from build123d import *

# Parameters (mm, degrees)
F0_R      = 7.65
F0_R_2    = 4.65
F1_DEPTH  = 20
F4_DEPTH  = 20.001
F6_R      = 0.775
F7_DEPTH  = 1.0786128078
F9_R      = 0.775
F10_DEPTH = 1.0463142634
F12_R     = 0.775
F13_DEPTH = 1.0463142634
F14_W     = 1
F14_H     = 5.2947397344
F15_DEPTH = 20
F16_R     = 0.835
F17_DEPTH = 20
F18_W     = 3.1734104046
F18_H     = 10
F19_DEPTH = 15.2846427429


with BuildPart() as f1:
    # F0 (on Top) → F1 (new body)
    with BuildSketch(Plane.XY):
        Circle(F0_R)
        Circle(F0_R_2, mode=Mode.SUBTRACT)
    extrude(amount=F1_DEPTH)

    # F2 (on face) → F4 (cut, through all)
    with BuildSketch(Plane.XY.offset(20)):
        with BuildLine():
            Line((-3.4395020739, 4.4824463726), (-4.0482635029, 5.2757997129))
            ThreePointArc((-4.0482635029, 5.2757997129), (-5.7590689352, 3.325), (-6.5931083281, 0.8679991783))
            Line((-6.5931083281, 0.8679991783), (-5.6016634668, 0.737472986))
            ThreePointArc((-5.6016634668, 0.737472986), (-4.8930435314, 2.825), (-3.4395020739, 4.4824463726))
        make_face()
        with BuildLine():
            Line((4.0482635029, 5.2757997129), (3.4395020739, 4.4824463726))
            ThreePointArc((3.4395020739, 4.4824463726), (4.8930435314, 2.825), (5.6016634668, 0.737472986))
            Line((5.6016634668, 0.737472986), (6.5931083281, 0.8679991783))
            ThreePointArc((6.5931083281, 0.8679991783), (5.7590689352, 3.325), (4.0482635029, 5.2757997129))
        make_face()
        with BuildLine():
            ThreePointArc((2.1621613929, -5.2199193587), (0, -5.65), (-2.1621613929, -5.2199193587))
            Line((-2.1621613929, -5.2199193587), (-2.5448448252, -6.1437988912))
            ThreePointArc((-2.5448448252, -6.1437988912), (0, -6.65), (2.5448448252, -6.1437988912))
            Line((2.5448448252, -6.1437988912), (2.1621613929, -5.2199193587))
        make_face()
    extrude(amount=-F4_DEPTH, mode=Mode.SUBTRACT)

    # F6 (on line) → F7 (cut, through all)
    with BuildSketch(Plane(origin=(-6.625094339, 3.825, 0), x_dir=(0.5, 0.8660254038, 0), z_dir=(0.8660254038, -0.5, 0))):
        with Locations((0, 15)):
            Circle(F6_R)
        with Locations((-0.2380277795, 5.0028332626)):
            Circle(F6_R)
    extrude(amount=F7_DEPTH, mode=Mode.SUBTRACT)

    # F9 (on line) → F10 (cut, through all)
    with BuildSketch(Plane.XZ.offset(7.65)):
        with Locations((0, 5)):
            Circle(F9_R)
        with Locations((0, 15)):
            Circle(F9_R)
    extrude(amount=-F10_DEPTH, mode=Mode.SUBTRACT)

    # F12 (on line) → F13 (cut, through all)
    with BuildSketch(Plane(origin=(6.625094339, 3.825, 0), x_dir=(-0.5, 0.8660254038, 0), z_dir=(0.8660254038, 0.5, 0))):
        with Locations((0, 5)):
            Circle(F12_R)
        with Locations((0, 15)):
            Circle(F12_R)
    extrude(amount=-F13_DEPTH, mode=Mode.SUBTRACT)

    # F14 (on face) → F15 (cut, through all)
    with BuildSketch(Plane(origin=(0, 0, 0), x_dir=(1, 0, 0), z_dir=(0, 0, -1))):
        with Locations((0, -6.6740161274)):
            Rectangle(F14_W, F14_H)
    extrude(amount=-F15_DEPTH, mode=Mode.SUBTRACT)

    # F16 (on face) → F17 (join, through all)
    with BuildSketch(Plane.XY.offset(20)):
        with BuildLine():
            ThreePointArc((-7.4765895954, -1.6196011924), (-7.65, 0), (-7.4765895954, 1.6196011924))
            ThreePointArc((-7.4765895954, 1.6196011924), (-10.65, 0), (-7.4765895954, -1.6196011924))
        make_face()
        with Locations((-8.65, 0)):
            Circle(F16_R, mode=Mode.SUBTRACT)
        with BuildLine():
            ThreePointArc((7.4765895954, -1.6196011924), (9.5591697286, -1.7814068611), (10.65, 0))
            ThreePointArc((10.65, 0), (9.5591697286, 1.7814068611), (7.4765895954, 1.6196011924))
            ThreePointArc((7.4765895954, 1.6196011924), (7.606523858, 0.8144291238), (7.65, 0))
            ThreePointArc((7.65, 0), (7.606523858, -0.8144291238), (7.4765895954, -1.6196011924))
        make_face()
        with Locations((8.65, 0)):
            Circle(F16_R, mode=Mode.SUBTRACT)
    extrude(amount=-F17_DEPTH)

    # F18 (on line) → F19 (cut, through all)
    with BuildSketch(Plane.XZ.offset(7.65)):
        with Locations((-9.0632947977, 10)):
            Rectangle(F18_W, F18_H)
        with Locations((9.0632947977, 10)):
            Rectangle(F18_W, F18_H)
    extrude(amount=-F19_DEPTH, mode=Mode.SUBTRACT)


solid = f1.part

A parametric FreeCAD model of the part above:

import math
import FreeCAD as App
import Part
import Sketcher
Q = App.Units.Quantity


def add_polygon(sketch, points):
    """Adds a closed chain of lines whose ends are joined by coincident constraints."""
    first, n = sketch.GeometryCount, len(points)
    for a, b in zip(points, points[1:] + points[:1]):
        sketch.addGeometry(Part.LineSegment(App.Vector(*a, 0), App.Vector(*b, 0)), False)
    for i in range(n):
        sketch.addConstraint(Sketcher.Constraint("Coincident", first + i, 2, first + (i + 1) % n, 1))

doc = App.newDocument("Part")
body = doc.addObject("PartDesign::Body", "Body")

# Sketch on XY plane
sketch1 = body.newObject("Sketcher::SketchObject", "Sketch")
sketch1.AttachmentSupport = (doc.getObject("XY_Plane"), [""])
sketch1.MapMode = "FlatFace"
sketch1.addGeometry(Part.Circle(App.Vector(0, 0, 0), App.Vector(0, 0, 1), 7.65), False)
sketch1.addGeometry(Part.Circle(App.Vector(0, 0, 0), App.Vector(0, 0, 1), 4.65), False)
sketch1.addConstraint(Sketcher.Constraint("Coincident", 0, 3, -1, 1))
sketch1.addConstraint(Sketcher.Constraint("Coincident", 1, 3, -1, 1))
sketch1.addConstraint(Sketcher.Constraint("Diameter", 0, 15.3))
sketch1.addConstraint(Sketcher.Constraint("Diameter", 1, 9.3))
pad1 = body.newObject("PartDesign::Pad", "Pad")
pad1.Profile = sketch1
pad1.Length = 20

# Sketch on XY plane
sketch2 = body.newObject("Sketcher::SketchObject", "Sketch001")
sketch2.AttachmentSupport = (doc.getObject("XY_Plane"), [""])
sketch2.MapMode = "FlatFace"
sketch2.AttachmentOffset = App.Placement(App.Vector(0, 0, 20), App.Rotation())
sketch2.addGeometry(Part.LineSegment(App.Vector(-3.439502, 4.482446, 0), App.Vector(-4.048264, 5.2758, 0)), False)
sketch2.addGeometry(Part.ArcOfCircle(Part.Circle(App.Vector(0, 0, 0), App.Vector(0, 0, 1), 6.65), math.radians(127.5), math.radians(172.5)), False)
sketch2.addGeometry(Part.LineSegment(App.Vector(-6.593108, 0.867999, 0), App.Vector(-5.601663, 0.737473, 0)), False)
sketch2.addGeometry(Part.ArcOfCircle(Part.Circle(App.Vector(0, 0, 0), App.Vector(0, 0, 1), 5.65), math.radians(127.5), math.radians(172.5)), False)
sketch2.addGeometry(Part.LineSegment(App.Vector(4.048264, 5.2758, 0), App.Vector(3.439502, 4.482446, 0)), False)
sketch2.addGeometry(Part.ArcOfCircle(Part.Circle(App.Vector(0, 0, 0), App.Vector(0, 0, 1), 5.65), math.radians(7.5), math.radians(52.5)), False)
sketch2.addGeometry(Part.LineSegment(App.Vector(5.601663, 0.737473, 0), App.Vector(6.593108, 0.867999, 0)), False)
sketch2.addGeometry(Part.ArcOfCircle(Part.Circle(App.Vector(0, 0, 0), App.Vector(0, 0, 1), 6.65), math.radians(7.5), math.radians(52.5)), False)
sketch2.addGeometry(Part.ArcOfCircle(Part.Circle(App.Vector(0, 0, 0), App.Vector(0, 0, 1), 5.65), math.radians(-112.5), math.radians(-67.5)), False)
sketch2.addGeometry(Part.LineSegment(App.Vector(-2.162161, -5.219919, 0), App.Vector(-2.544845, -6.143799, 0)), False)
sketch2.addGeometry(Part.ArcOfCircle(Part.Circle(App.Vector(0, 0, 0), App.Vector(0, 0, 1), 6.65), math.radians(-112.5), math.radians(-67.5)), False)
sketch2.addGeometry(Part.LineSegment(App.Vector(2.544845, -6.143799, 0), App.Vector(2.162161, -5.219919, 0)), False)
sketch2.addConstraint(Sketcher.Constraint("Coincident", 0, 2, 1, 1))
sketch2.addConstraint(Sketcher.Constraint("Coincident", 1, 2, 2, 1))
sketch2.addConstraint(Sketcher.Constraint("Coincident", 2, 2, 3, 2))
sketch2.addConstraint(Sketcher.Constraint("Coincident", 3, 1, 0, 1))
sketch2.addConstraint(Sketcher.Constraint("Coincident", 4, 2, 5, 2))
sketch2.addConstraint(Sketcher.Constraint("Coincident", 5, 1, 6, 1))
sketch2.addConstraint(Sketcher.Constraint("Coincident", 6, 2, 7, 1))
sketch2.addConstraint(Sketcher.Constraint("Coincident", 7, 2, 4, 1))
sketch2.addConstraint(Sketcher.Constraint("Coincident", 8, 1, 9, 1))
sketch2.addConstraint(Sketcher.Constraint("Coincident", 9, 2, 10, 1))
sketch2.addConstraint(Sketcher.Constraint("Coincident", 10, 2, 11, 1))
sketch2.addConstraint(Sketcher.Constraint("Coincident", 11, 2, 8, 2))
sketch2.addConstraint(Sketcher.Constraint("Coincident", 1, 3, -1, 1))
sketch2.addConstraint(Sketcher.Constraint("Coincident", 3, 3, -1, 1))
sketch2.addConstraint(Sketcher.Constraint("Coincident", 5, 3, -1, 1))
sketch2.addConstraint(Sketcher.Constraint("Coincident", 7, 3, -1, 1))
sketch2.addConstraint(Sketcher.Constraint("Coincident", 8, 3, -1, 1))
sketch2.addConstraint(Sketcher.Constraint("Coincident", 10, 3, -1, 1))
sketch2.addConstraint(Sketcher.Constraint("Equal", 3, 5))
sketch2.addConstraint(Sketcher.Constraint("Equal", 1, 7))
sketch2.addConstraint(Sketcher.Constraint("Equal", 5, 8))
sketch2.addConstraint(Sketcher.Constraint("Equal", 7, 10))
sketch2.addConstraint(Sketcher.Constraint("Horizontal", 3, 1, 4, 2))
sketch2.addConstraint(Sketcher.Constraint("Horizontal", 2, 2, 5, 1))
sketch2.addConstraint(Sketcher.Constraint("Horizontal", 1, 2, 6, 2))
sketch2.addConstraint(Sketcher.Constraint("Horizontal", 0, 2, 7, 2))
sketch2.addConstraint(Sketcher.Constraint("Horizontal", 9, 2, 10, 2))
sketch2.addConstraint(Sketcher.Constraint("Horizontal", 8, 1, 11, 2))
sketch2.addConstraint(Sketcher.Constraint("Radius", 1, 6.65))
sketch2.addConstraint(Sketcher.Constraint("Radius", 3, 5.65))
sketch2.addConstraint(Sketcher.Constraint("Angle", 0, Q("127.5 deg")))
sketch2.addConstraint(Sketcher.Constraint("Angle", 2, Q("-7.5 deg")))
sketch2.addConstraint(Sketcher.Constraint("Angle", 9, Q("-112.5 deg")))
sketch2.addConstraint(Sketcher.Constraint("DistanceY", -1, 1, 1, 2, 0.867999))
sketch2.addConstraint(Sketcher.Constraint("DistanceY", -1, 1, 0, 2, 5.2758))
sketch2.addConstraint(Sketcher.Constraint("DistanceY", 9, 2, -1, 1, 6.143799))
pocket1 = body.newObject("PartDesign::Pocket", "Pocket")
pocket1.Profile = sketch2
pocket1.Type = "ThroughAll"

# Sketch on an angled plane
sketch3 = body.newObject("Sketcher::SketchObject", "Sketch002")
sketch3.Placement = App.Placement(App.Vector(-6.625094, 3.825, 0), App.Rotation(App.Vector(0.5, 0.866025404, 0), App.Vector(0, 0, 1), App.Vector(0.866025404, -0.5, 0), "ZXY"))
sketch3.addGeometry(Part.Circle(App.Vector(0, 15, 0), App.Vector(0, 0, 1), 0.775), False)
sketch3.addGeometry(Part.Circle(App.Vector(-0.238028, 5.002833, 0), App.Vector(0, 0, 1), 0.775), False)
sketch3.addConstraint(Sketcher.Constraint("Equal", 0, 1))
sketch3.addConstraint(Sketcher.Constraint("PointOnObject", 0, 3, -2))
sketch3.addConstraint(Sketcher.Constraint("Diameter", 0, 1.55))
sketch3.addConstraint(Sketcher.Constraint("DistanceY", -1, 1, 0, 3, 15.0))
sketch3.addConstraint(Sketcher.Constraint("DistanceX", 1, 3, -1, 1, 0.238028))
sketch3.addConstraint(Sketcher.Constraint("DistanceY", -1, 1, 1, 3, 5.002833))
pocket2 = body.newObject("PartDesign::Pocket", "Pocket001")
pocket2.Profile = sketch3
pocket2.Length = 1.078613
pocket2.Reversed = True

# Sketch on XZ plane
sketch4 = body.newObject("Sketcher::SketchObject", "Sketch003")
sketch4.AttachmentSupport = (doc.getObject("XZ_Plane"), [""])
sketch4.MapMode = "FlatFace"
sketch4.AttachmentOffset = App.Placement(App.Vector(0, 0, 7.65), App.Rotation())
sketch4.addGeometry(Part.Circle(App.Vector(0, 5, 0), App.Vector(0, 0, 1), 0.775), False)
sketch4.addGeometry(Part.Circle(App.Vector(0, 15, 0), App.Vector(0, 0, 1), 0.775), False)
sketch4.addConstraint(Sketcher.Constraint("Equal", 0, 1))
sketch4.addConstraint(Sketcher.Constraint("PointOnObject", 0, 3, -2))
sketch4.addConstraint(Sketcher.Constraint("PointOnObject", 1, 3, -2))
sketch4.addConstraint(Sketcher.Constraint("Diameter", 0, 1.55))
sketch4.addConstraint(Sketcher.Constraint("DistanceY", -1, 1, 0, 3, 5.0))
sketch4.addConstraint(Sketcher.Constraint("DistanceY", -1, 1, 1, 3, 15.0))
pocket3 = body.newObject("PartDesign::Pocket", "Pocket002")
pocket3.Profile = sketch4
pocket3.Length = 1.046314

# Sketch on an angled plane
sketch5 = body.newObject("Sketcher::SketchObject", "Sketch004")
sketch5.Placement = App.Placement(App.Vector(6.625094, 3.825, 0), App.Rotation(App.Vector(-0.5, 0.866025404, 0), App.Vector(0, 0, 1), App.Vector(0.866025404, 0.5, 0), "ZXY"))
sketch5.addGeometry(Part.Circle(App.Vector(0, 5, 0), App.Vector(0, 0, 1), 0.775), False)
sketch5.addGeometry(Part.Circle(App.Vector(0, 15, 0), App.Vector(0, 0, 1), 0.775), False)
sketch5.addConstraint(Sketcher.Constraint("Equal", 0, 1))
sketch5.addConstraint(Sketcher.Constraint("PointOnObject", 0, 3, -2))
sketch5.addConstraint(Sketcher.Constraint("PointOnObject", 1, 3, -2))
sketch5.addConstraint(Sketcher.Constraint("Diameter", 0, 1.55))
sketch5.addConstraint(Sketcher.Constraint("DistanceY", -1, 1, 0, 3, 5.0))
sketch5.addConstraint(Sketcher.Constraint("DistanceY", -1, 1, 1, 3, 15.0))
pocket4 = body.newObject("PartDesign::Pocket", "Pocket003")
pocket4.Profile = sketch5
pocket4.Length = 1.046314

# Sketch on XY plane
sketch6 = body.newObject("Sketcher::SketchObject", "Sketch005")
sketch6.AttachmentSupport = (doc.getObject("XY_Plane"), [""])
sketch6.MapMode = "FlatFace"
add_polygon(sketch6, [(-0.5, 4.026646), (-0.5, 9.321386), (0.5, 9.321386), (0.5, 4.026646)])  # lines 0-3
sketch6.addConstraint(Sketcher.Constraint("Vertical", 0))
sketch6.addConstraint(Sketcher.Constraint("Horizontal", 1))
sketch6.addConstraint(Sketcher.Constraint("Vertical", 2))
sketch6.addConstraint(Sketcher.Constraint("Horizontal", 3))
sketch6.addConstraint(Sketcher.Constraint("DistanceX", 1, 1, 1, 2, 1.0))
sketch6.addConstraint(Sketcher.Constraint("DistanceX", 0, 2, -1, 1, 0.5))
sketch6.addConstraint(Sketcher.Constraint("DistanceY", 0, 1, 0, 2, 5.29474))
sketch6.addConstraint(Sketcher.Constraint("DistanceY", -1, 1, 0, 2, 9.321386))
pocket5 = body.newObject("PartDesign::Pocket", "Pocket004")
pocket5.Profile = sketch6
pocket5.Type = "ThroughAll"
pocket5.Reversed = True

# Sketch on XY plane
sketch7 = body.newObject("Sketcher::SketchObject", "Sketch006")
sketch7.AttachmentSupport = (doc.getObject("XY_Plane"), [""])
sketch7.MapMode = "FlatFace"
sketch7.AttachmentOffset = App.Placement(App.Vector(0, 0, 20), App.Rotation())
sketch7.addGeometry(Part.ArcOfCircle(Part.Circle(App.Vector(0, 0, 0), App.Vector(0, 0, 1), 7.65), math.radians(167.777268), math.radians(192.222732)), False)
sketch7.addGeometry(Part.ArcOfCircle(Part.Circle(App.Vector(-8.65, 0, 0), App.Vector(0, 0, 1), 2), math.radians(54.076454), math.radians(305.923546)), False)
sketch7.addGeometry(Part.Circle(App.Vector(-8.65, 0, 0), App.Vector(0, 0, 1), 0.835), False)
sketch7.addGeometry(Part.ArcOfCircle(Part.Circle(App.Vector(8.65, 0, 0), App.Vector(0, 0, 1), 2), math.radians(-125.923546), math.radians(0)), False)
sketch7.addGeometry(Part.ArcOfCircle(Part.Circle(App.Vector(8.65, 0, 0), App.Vector(0, 0, 1), 2), math.radians(0), math.radians(125.923546)), False)
sketch7.addGeometry(Part.ArcOfCircle(Part.Circle(App.Vector(0, 0, 0), App.Vector(0, 0, 1), 7.65), math.radians(0), math.radians(12.222732)), False)
sketch7.addGeometry(Part.ArcOfCircle(Part.Circle(App.Vector(0, 0, 0), App.Vector(0, 0, 1), 7.65), math.radians(-12.222732), math.radians(0)), False)
sketch7.addGeometry(Part.Circle(App.Vector(8.65, 0, 0), App.Vector(0, 0, 1), 0.835), False)
sketch7.addConstraint(Sketcher.Constraint("Coincident", 0, 1, 1, 1))
sketch7.addConstraint(Sketcher.Constraint("Coincident", 1, 2, 0, 2))
sketch7.addConstraint(Sketcher.Constraint("Tangent", 3, 2, 4, 1))
sketch7.addConstraint(Sketcher.Constraint("Coincident", 4, 2, 5, 2))
sketch7.addConstraint(Sketcher.Constraint("Tangent", 5, 1, 6, 2))
sketch7.addConstraint(Sketcher.Constraint("Coincident", 6, 1, 3, 1))
sketch7.addConstraint(Sketcher.Constraint("Coincident", 0, 3, -1, 1))
sketch7.addConstraint(Sketcher.Constraint("Coincident", 5, 3, -1, 1))
sketch7.addConstraint(Sketcher.Constraint("Coincident", 2, 3, 1, 3))
sketch7.addConstraint(Sketcher.Constraint("Coincident", 7, 3, 3, 3))
sketch7.addConstraint(Sketcher.Constraint("Equal", 1, 3))
sketch7.addConstraint(Sketcher.Constraint("Equal", 3, 4))
sketch7.addConstraint(Sketcher.Constraint("Equal", 0, 5))
sketch7.addConstraint(Sketcher.Constraint("Equal", 5, 6))
sketch7.addConstraint(Sketcher.Constraint("Equal", 2, 7))
sketch7.addConstraint(Sketcher.Constraint("Symmetric", 1, 3, 3, 3, -1, 1))
sketch7.addConstraint(Sketcher.Constraint("PointOnObject", 1, 3, -1))
sketch7.addConstraint(Sketcher.Constraint("PointOnObject", 3, 2, -1))
sketch7.addConstraint(Sketcher.Constraint("PointOnObject", 5, 1, -1))
sketch7.addConstraint(Sketcher.Constraint("Radius", 1, 2.0))
sketch7.addConstraint(Sketcher.Constraint("Diameter", 2, 1.67))
sketch7.addConstraint(Sketcher.Constraint("Radius", 0, 7.65))
sketch7.addConstraint(Sketcher.Constraint("DistanceX", 5, 1, 3, 3, 1.0))
pad2 = body.newObject("PartDesign::Pad", "Pad001")
pad2.Profile = sketch7
pad2.Length = 20
pad2.Reversed = True

# Sketch on XZ plane
sketch8 = body.newObject("Sketcher::SketchObject", "Sketch007")
sketch8.AttachmentSupport = (doc.getObject("XZ_Plane"), [""])
sketch8.MapMode = "FlatFace"
sketch8.AttachmentOffset = App.Placement(App.Vector(0, 0, 7.65), App.Rotation())
add_polygon(sketch8, [(-10.65, 15), (-10.65, 5), (-7.47659, 5), (-7.47659, 15)])  # lines 0-3
add_polygon(sketch8, [(7.47659, 15), (7.47659, 5), (10.65, 5), (10.65, 15)])  # lines 4-7
sketch8.addConstraint(Sketcher.Constraint("Vertical", 0))
sketch8.addConstraint(Sketcher.Constraint("Horizontal", 1))
sketch8.addConstraint(Sketcher.Constraint("Vertical", 2))
sketch8.addConstraint(Sketcher.Constraint("Horizontal", 3))
sketch8.addConstraint(Sketcher.Constraint("Vertical", 4))
sketch8.addConstraint(Sketcher.Constraint("Horizontal", 5))
sketch8.addConstraint(Sketcher.Constraint("Vertical", 6))
sketch8.addConstraint(Sketcher.Constraint("Horizontal", 7))
sketch8.addConstraint(Sketcher.Constraint("Symmetric", 1, 2, 4, 2, -2))
sketch8.addConstraint(Sketcher.Constraint("Symmetric", 3, 2, 6, 2, -2))
sketch8.addConstraint(Sketcher.Constraint("DistanceY", 0, 2, 0, 1, 10.0))
sketch8.addConstraint(Sketcher.Constraint("DistanceY", -1, 1, 0, 2, 5.0))
sketch8.addConstraint(Sketcher.Constraint("DistanceX", 0, 2, 5, 2, 21.3))
sketch8.addConstraint(Sketcher.Constraint("DistanceX", 1, 1, 1, 2, 3.17341))
pocket6 = body.newObject("PartDesign::Pocket", "Pocket005")
pocket6.Profile = sketch8
pocket6.Type = "ThroughAll"

doc.recompute()
